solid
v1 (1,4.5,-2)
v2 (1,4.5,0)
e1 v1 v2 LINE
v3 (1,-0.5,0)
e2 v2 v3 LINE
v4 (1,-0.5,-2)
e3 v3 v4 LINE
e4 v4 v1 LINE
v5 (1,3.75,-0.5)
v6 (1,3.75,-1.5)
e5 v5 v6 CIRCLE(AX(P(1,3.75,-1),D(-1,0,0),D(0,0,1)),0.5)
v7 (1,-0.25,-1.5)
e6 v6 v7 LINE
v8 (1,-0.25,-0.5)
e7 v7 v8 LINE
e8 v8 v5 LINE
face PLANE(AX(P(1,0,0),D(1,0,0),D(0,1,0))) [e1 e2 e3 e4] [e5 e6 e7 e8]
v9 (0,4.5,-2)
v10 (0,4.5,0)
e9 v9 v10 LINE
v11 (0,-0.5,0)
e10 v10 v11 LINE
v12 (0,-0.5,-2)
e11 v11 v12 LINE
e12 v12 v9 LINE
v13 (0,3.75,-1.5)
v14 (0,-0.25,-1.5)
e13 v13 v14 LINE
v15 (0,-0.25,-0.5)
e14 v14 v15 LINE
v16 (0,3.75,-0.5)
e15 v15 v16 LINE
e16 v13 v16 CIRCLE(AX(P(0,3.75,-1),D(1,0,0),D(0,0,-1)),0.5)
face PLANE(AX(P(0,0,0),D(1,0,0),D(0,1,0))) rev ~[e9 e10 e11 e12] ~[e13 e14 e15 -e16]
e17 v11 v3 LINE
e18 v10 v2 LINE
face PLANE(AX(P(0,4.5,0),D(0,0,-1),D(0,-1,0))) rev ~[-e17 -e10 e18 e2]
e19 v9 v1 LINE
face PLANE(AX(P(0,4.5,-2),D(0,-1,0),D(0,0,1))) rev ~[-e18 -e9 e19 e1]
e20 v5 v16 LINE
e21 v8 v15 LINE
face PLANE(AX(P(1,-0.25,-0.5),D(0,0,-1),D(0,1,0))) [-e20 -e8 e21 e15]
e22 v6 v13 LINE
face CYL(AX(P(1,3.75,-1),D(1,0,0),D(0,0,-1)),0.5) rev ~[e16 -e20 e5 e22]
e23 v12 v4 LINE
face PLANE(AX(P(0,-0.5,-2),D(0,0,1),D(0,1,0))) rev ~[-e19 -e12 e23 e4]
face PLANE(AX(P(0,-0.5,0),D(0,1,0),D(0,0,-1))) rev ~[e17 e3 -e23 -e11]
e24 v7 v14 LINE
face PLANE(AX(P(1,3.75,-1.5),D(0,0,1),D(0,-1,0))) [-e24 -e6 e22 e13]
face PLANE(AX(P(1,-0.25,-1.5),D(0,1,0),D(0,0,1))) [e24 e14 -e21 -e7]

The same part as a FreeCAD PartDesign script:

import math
import FreeCAD as App
import Part
import Sketcher

V = App.Vector
Q = App.Units.Quantity

doc = App.newDocument("Part")
body = doc.addObject("PartDesign::Body", "Body")

sketch1 = body.newObject("Sketcher::SketchObject", "Sketch")
sketch1.AttachmentSupport = (doc.getObject("YZ_Plane"), [""])
sketch1.MapMode = "FlatFace"
sketch1.addGeometry(Part.LineSegment(V(4.5, -2, 0), V(4.5, 0, 0)), False)
sketch1.addGeometry(Part.LineSegment(V(4.5, 0, 0), V(-0.5, 0, 0)), False)
sketch1.addGeometry(Part.LineSegment(V(-0.5, 0, 0), V(-0.5, -2, 0)), False)
sketch1.addGeometry(Part.LineSegment(V(-0.5, -2, 0), V(4.5, -2, 0)), False)
sketch1.addConstraint(Sketcher.Constraint("Coincident", 0, 2, 1, 1))
sketch1.addConstraint(Sketcher.Constraint("Coincident", 1, 2, 2, 1))
sketch1.addConstraint(Sketcher.Constraint("Coincident", 2, 2, 3, 1))
sketch1.addConstraint(Sketcher.Constraint("Coincident", 3, 2, 0, 1))
sketch1.addConstraint(Sketcher.Constraint("Vertical", 0))
sketch1.addConstraint(Sketcher.Constraint("Horizontal", 1))
sketch1.addConstraint(Sketcher.Constraint("Vertical", 2))
sketch1.addConstraint(Sketcher.Constraint("Horizontal", 3))
sketch1.addConstraint(Sketcher.Constraint("PointOnObject", 0, 2, -1))
sketch1.addConstraint(Sketcher.Constraint("DistanceX", 1, 2, 1, 1, Q("5 mm")))
sketch1.addConstraint(Sketcher.Constraint("DistanceY", 0, 1, 0, 2, Q("2 mm")))
sketch1.addConstraint(Sketcher.Constraint("DistanceX", -1, 1, 0, 2, Q("4.5 mm")))
pad1 = body.newObject("PartDesign::Pad", "Pad")
pad1.Profile = sketch1
pad1.Length = 1

sketch2 = body.newObject("Sketcher::SketchObject", "Sketch001")
sketch2.AttachmentSupport = (doc.getObject("YZ_Plane"), [""])
sketch2.MapMode = "FlatFace"
sketch2.AttachmentOffset = App.Placement(V(0, 0, 1), App.Rotation())
sketch2.addGeometry(Part.LineSegment(V(-0.2, -1.5, 0), V(3.8, -1.5, 0)), False)
sketch2.addGeometry(Part.ArcOfCircle(Part.Circle(V(3.8, -1, 0), V(0, 0, 1), 0.5), math.radians(-90), math.radians(90)), False)
sketch2.addGeometry(Part.LineSegment(V(3.8, -0.5, 0), V(-0.2, -0.5, 0)), False)
sketch2.addGeometry(Part.LineSegment(V(-0.2, -0.5, 0), V(-0.2, -1.5, 0)), False)
sketch2.addConstraint(Sketcher.Constraint("Tangent", 0, 2, 1, 1))
sketch2.addConstraint(Sketcher.Constraint("Tangent", 1, 2, 2, 1))
sketch2.addConstraint(Sketcher.Constraint("Coincident", 2, 2, 3, 1))
sketch2.addConstraint(Sketcher.Constraint("Coincident", 3, 2, 0, 1))
sketch2.addConstraint(Sketcher.Constraint("Horizontal", 0))
sketch2.addConstraint(Sketcher.Constraint("Horizontal", 2))
sketch2.addConstraint(Sketcher.Constraint("Vertical", 3))
sketch2.addConstraint(Sketcher.Constraint("Radius", 1, Q("0.5 mm")))
sketch2.addConstraint(Sketcher.Constraint("DistanceY", 1, 3, -1, 1, Q("1 mm")))
sketch2.addConstraint(Sketcher.Constraint("DistanceX", 0, 1, 0, 2, Q("4 mm")))
sketch2.addConstraint(Sketcher.Constraint("DistanceX", -1, 1, 1, 3, Q("3.75 mm")))
pocket1 = body.newObject("PartDesign::Pocket", "Pocket")
pocket1.Profile = sketch2
pocket1.Length = 1

doc.recompute()
